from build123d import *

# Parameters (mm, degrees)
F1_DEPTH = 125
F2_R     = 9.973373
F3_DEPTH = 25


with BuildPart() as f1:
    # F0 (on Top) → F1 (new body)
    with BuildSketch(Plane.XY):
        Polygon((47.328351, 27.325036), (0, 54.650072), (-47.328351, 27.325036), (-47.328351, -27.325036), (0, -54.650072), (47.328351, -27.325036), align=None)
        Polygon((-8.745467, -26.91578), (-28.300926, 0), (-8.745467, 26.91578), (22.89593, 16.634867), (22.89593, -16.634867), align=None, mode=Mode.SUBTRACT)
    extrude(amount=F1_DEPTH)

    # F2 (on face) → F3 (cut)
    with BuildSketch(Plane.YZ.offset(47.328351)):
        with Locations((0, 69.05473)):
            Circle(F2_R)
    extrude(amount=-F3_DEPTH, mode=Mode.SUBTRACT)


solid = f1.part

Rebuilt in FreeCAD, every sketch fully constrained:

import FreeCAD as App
import Part
import Sketcher
from FreeCAD import Vector
Q = App.Units.Quantity

doc = App.newDocument("Part")
params = doc.addObject("Spreadsheet::Sheet", "Params")
for row, (alias, value) in enumerate([
    ("pad1_length", "125 mm"),
    ("pocket1_length", "25 mm"),
], start=1):
    params.set(f"A{row}", alias)
    params.set(f"B{row}", "=" + value)
    params.setAlias(f"B{row}", alias)

body = doc.addObject("PartDesign::Body", "Body")

# Sketch on XY plane
sketch1 = body.newObject("Sketcher::SketchObject", "Sketch")
sketch1.AttachmentSupport = (doc.getObject("XY_Plane"), [""])
sketch1.MapMode = "FlatFace"
sketch1.addGeometry(Part.LineSegment(Vector(47, 27, 0), Vector(0, 55, 0)), False)
sketch1.addGeometry(Part.LineSegment(Vector(0, 55, 0), Vector(-47, 27, 0)), False)
sketch1.addGeometry(Part.LineSegment(Vector(-47, 27, 0), Vector(-47, -27, 0)), False)
sketch1.addGeometry(Part.LineSegment(Vector(-47, -27, 0), Vector(0, -55, 0)), False)
sketch1.addGeometry(Part.LineSegment(Vector(0, -55, 0), Vector(47, -27, 0)), False)
sketch1.addGeometry(Part.LineSegment(Vector(47, -27, 0), Vector(47, 27, 0)), False)
sketch1.addGeometry(Part.LineSegment(Vector(23, -17, 0), Vector(-9, -27, 0)), False)
sketch1.addGeometry(Part.LineSegment(Vector(-9, -27, 0), Vector(-28, 0, 0)), False)
sketch1.addGeometry(Part.LineSegment(Vector(-28, 0, 0), Vector(-9, 27, 0)), False)
sketch1.addGeometry(Part.LineSegment(Vector(-9, 27, 0), Vector(23, 17, 0)), False)
sketch1.addGeometry(Part.LineSegment(Vector(23, 17, 0), Vector(23, -17, 0)), False)
sketch1.addConstraint(Sketcher.Constraint("Coincident", 0, 2, 1, 1))
sketch1.addConstraint(Sketcher.Constraint("Coincident", 1, 2, 2, 1))
sketch1.addConstraint(Sketcher.Constraint("Coincident", 2, 2, 3, 1))
sketch1.addConstraint(Sketcher.Constraint("Coincident", 3, 2, 4, 1))
sketch1.addConstraint(Sketcher.Constraint("Coincident", 4, 2, 5, 1))
sketch1.addConstraint(Sketcher.Constraint("Coincident", 5, 2, 0, 1))
sketch1.addConstraint(Sketcher.Constraint("Coincident", 6, 2, 7, 1))
sketch1.addConstraint(Sketcher.Constraint("Coincident", 7, 2, 8, 1))
sketch1.addConstraint(Sketcher.Constraint("Coincident", 8, 2, 9, 1))
sketch1.addConstraint(Sketcher.Constraint("Coincident", 9, 2, 10, 1))
sketch1.addConstraint(Sketcher.Constraint("Coincident", 10, 2, 6, 1))
sketch1.addConstraint(Sketcher.Constraint("Vertical", 2))
sketch1.addConstraint(Sketcher.Constraint("Vertical", 5))
sketch1.addConstraint(Sketcher.Constraint("Vertical", 10))
sketch1.addConstraint(Sketcher.Constraint("Symmetric", 0, 2, 3, 2, -1, 1))
sketch1.addConstraint(Sketcher.Constraint("Symmetric", 1, 2, 4, 2, -1, 1))
sketch1.addConstraint(Sketcher.Constraint("Symmetric", 6, 2, 8, 2, -1))
sketch1.addConstraint(Sketcher.Constraint("PointOnObject", 0, 2, -2))
sketch1.addConstraint(Sketcher.Constraint("PointOnObject", 7, 2, -1))
sketch1.addConstraint(Sketcher.Constraint("Parallel", 0, 3))
sketch1.addConstraint(Sketcher.Constraint("Horizontal", 2, 2, 4, 2))
sketch1.addConstraint(Sketcher.Constraint("Equal", 6, 7))
sketch1.addConstraint(Sketcher.Constraint("Equal", 8, 9))
sketch1.addConstraint(Sketcher.Constraint("Angle", 0, Q("150 deg")))
sketch1.addConstraint(Sketcher.Constraint("Angle", 6, Q("-162 deg")))
sketch1.addConstraint(Sketcher.Constraint("Angle", 7, Q("126 deg")))
sketch1.addConstraint(Sketcher.Constraint("DistanceX", 2, 2, 4, 2, 94.656702))
sketch1.addConstraint(Sketcher.Constraint("DistanceY", 2, 2, 2, 1, 54.650072))
sketch1.addConstraint(Sketcher.Constraint("DistanceY", 10, 2, 10, 1, 33.269734))
sketch1.addConstraint(Sketcher.Constraint("DistanceX", -1, 1, 9, 2, 22.89593))
pad1 = body.newObject("PartDesign::Pad", "Pad")
pad1.Profile = sketch1
pad1.setExpression("Length", "Params.pad1_length")

# Sketch on YZ plane
sketch2 = body.newObject("Sketcher::SketchObject", "Sketch001")
sketch2.AttachmentSupport = (doc.getObject("YZ_Plane"), [""])
sketch2.MapMode = "FlatFace"
sketch2.AttachmentOffset = App.Placement(Vector(0, 0, 47.328351), App.Rotation())
sketch2.addGeometry(Part.Circle(Vector(0, 69, 0), Vector(0, 0, 1), 10), False)
sketch2.addConstraint(Sketcher.Constraint("PointOnObject", 0, 3, -2))
sketch2.addConstraint(Sketcher.Constraint("Diameter", 0, 19.946746))
sketch2.addConstraint(Sketcher.Constraint("DistanceY", -1, 1, 0, 3, 69.05473))
pocket1 = body.newObject("PartDesign::Pocket", "Pocket")
pocket1.Profile = sketch2
pocket1.setExpression("Length", "Params.pocket1_length")

doc.recompute()
